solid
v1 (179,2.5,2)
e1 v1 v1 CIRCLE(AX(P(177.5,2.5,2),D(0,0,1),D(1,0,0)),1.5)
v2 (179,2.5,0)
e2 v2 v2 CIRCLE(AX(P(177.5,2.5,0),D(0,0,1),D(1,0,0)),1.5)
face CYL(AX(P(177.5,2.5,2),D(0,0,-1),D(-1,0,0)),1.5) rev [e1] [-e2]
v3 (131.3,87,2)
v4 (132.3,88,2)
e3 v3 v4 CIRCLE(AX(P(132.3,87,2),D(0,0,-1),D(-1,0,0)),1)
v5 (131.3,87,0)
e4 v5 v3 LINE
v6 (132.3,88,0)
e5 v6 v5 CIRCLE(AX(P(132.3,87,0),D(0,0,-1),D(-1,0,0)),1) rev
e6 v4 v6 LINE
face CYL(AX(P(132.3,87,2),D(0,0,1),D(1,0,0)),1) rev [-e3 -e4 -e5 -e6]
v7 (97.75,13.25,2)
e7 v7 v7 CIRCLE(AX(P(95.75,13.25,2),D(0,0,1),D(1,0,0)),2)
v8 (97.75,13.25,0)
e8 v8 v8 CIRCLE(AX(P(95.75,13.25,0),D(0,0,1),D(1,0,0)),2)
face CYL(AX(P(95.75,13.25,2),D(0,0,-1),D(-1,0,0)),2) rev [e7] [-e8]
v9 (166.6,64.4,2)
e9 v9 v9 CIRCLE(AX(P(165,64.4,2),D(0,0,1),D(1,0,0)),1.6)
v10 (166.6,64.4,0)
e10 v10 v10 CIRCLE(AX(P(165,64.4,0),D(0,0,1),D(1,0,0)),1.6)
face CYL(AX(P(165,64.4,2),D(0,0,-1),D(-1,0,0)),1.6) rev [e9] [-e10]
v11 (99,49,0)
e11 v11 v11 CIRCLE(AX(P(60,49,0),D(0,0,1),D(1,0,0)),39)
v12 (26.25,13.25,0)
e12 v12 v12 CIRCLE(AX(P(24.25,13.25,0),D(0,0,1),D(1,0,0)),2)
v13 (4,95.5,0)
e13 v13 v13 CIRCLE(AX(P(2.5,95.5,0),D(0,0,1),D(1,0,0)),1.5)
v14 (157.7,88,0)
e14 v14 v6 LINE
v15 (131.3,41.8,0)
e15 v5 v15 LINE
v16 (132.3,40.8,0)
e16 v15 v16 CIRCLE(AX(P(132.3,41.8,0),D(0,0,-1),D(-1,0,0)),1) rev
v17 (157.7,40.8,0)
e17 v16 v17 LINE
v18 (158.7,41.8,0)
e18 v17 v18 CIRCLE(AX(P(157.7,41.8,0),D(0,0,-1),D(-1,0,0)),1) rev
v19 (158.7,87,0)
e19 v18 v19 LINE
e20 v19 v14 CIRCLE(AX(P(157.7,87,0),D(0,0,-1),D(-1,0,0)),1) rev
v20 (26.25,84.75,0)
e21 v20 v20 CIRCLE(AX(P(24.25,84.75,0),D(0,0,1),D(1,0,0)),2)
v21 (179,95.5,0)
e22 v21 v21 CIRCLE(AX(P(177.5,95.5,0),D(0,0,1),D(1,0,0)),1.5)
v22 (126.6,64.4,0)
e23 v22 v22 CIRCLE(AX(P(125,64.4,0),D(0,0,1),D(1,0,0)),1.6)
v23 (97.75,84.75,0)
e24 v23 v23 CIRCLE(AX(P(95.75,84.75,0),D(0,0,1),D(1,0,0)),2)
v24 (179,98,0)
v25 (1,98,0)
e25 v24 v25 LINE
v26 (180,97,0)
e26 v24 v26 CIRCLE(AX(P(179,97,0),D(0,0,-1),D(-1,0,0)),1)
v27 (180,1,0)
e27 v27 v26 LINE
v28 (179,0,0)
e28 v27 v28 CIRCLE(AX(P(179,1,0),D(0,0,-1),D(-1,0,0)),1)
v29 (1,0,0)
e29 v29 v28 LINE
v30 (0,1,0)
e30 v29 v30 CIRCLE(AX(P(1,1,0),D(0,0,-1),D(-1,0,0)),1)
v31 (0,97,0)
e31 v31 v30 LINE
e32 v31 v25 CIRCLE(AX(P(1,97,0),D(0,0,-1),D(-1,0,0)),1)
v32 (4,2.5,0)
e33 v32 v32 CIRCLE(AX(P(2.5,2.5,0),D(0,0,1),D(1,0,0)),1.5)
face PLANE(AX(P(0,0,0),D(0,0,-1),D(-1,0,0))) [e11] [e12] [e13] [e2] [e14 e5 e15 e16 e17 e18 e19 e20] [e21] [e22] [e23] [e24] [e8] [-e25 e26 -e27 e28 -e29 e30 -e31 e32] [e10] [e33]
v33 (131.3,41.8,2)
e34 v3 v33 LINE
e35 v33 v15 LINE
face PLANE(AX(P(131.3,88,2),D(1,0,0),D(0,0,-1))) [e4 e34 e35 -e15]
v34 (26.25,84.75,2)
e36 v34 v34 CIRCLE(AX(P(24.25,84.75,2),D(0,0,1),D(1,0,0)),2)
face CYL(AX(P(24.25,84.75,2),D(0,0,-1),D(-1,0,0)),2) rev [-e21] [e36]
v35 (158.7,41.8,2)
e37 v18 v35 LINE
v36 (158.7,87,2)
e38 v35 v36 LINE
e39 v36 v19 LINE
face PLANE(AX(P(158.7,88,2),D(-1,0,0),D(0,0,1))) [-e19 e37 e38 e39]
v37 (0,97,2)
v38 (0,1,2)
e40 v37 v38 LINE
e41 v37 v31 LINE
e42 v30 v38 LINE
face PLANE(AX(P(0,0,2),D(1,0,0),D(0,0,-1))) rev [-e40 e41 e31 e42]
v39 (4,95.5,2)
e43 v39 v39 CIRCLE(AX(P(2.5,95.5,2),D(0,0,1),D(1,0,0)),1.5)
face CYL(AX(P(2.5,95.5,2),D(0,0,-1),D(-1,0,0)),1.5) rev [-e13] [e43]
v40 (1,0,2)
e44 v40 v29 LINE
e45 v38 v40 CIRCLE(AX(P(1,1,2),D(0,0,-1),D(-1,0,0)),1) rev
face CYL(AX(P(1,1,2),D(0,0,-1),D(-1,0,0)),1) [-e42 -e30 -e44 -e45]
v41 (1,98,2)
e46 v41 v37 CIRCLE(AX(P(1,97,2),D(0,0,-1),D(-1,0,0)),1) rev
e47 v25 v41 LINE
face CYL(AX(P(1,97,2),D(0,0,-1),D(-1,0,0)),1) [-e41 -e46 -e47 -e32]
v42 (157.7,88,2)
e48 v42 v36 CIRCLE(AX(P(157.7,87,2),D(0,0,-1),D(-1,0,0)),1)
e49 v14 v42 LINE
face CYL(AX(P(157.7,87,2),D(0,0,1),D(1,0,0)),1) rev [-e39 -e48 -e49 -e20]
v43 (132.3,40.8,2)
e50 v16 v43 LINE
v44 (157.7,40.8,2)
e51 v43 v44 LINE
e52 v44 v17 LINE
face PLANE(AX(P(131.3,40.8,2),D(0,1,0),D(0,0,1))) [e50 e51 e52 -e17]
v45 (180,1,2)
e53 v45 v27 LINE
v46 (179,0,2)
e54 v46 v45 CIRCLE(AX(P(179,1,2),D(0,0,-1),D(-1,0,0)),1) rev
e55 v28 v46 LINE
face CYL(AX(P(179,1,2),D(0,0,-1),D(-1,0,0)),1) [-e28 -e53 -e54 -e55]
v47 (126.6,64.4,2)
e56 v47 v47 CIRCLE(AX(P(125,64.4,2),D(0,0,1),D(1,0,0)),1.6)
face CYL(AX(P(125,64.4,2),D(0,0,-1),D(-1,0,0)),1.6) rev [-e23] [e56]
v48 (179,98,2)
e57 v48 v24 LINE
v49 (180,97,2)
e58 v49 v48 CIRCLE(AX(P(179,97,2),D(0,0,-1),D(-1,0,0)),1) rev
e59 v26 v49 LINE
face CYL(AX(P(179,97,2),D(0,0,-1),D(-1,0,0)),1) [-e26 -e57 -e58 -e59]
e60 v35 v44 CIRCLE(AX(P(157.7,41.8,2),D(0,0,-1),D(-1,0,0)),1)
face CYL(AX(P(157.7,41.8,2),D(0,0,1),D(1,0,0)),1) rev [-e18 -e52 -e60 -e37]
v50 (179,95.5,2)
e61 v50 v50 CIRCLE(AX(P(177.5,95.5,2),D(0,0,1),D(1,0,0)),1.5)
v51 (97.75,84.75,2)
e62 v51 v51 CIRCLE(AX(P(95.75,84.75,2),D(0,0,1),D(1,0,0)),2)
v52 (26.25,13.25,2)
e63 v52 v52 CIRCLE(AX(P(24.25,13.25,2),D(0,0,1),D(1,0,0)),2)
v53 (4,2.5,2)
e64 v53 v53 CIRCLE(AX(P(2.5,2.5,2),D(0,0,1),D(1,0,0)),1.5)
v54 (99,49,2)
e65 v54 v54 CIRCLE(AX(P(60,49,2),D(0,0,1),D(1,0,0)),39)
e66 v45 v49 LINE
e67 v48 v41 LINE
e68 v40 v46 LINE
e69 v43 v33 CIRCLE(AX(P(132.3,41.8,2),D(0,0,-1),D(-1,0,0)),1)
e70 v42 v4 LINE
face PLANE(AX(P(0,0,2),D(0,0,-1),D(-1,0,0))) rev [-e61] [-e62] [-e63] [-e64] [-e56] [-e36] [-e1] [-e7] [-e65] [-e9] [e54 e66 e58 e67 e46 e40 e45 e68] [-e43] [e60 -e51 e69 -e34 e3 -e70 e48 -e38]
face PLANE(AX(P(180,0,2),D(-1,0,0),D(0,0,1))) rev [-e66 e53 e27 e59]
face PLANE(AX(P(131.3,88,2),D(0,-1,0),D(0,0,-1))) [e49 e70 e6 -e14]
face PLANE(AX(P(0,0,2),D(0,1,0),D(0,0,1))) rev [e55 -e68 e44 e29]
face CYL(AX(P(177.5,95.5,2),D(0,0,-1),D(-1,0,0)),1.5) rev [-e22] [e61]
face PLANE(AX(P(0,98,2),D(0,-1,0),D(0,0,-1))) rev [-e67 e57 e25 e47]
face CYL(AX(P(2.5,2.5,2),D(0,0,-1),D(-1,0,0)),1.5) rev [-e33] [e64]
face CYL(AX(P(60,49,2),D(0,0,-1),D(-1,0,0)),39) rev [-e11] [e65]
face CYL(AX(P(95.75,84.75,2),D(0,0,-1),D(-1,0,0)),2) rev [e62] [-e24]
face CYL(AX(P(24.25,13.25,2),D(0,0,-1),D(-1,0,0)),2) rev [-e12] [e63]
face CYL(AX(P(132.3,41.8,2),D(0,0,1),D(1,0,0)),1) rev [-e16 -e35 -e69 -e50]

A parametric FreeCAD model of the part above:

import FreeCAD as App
import Part
import Sketcher
Q = App.Units.Quantity


def edges_at(feature, points):
    """Names of the edges that pass closest to the given points."""
    edges = feature.Shape.Edges
    near = lambda p: min(range(len(edges)), key=lambda i: edges[i].distToShape(Part.Vertex(*p))[0])
    return sorted({f"Edge{near(p) + 1}" for p in points})

doc = App.newDocument("Part")
params = doc.addObject("Spreadsheet::Sheet", "Params")
for row, (alias, value) in enumerate([
    ("sketch1_diameter", "3 mm"),
    ("sketch1_diameter2", "4 mm"),
    ("sketch1_diameter3", "78 mm"),
    ("sketch1_diameter4", "3.2 mm"),
    ("sketch1_width", "180 mm"),
    ("pad1_length", "2 mm"),
    ("fillet_radius", "1 mm"),
    ("fillet2_radius", "1 mm"),
], start=1):
    params.set(f"A{row}", alias)
    params.set(f"B{row}", "=" + value)
    params.setAlias(f"B{row}", alias)

body = doc.addObject("PartDesign::Body", "Body")

# Sketch on XY plane
sketch1 = body.newObject("Sketcher::SketchObject", "Sketch")
sketch1.AttachmentSupport = (doc.getObject("XY_Plane"), [""])
sketch1.MapMode = "FlatFace"
sketch1.addGeometry(Part.LineSegment(App.Vector(0, 98, 0), App.Vector(0, 0, 0)), False)
sketch1.addGeometry(Part.LineSegment(App.Vector(0, 0, 0), App.Vector(180, 0, 0)), False)
sketch1.addGeometry(Part.LineSegment(App.Vector(180, 0, 0), App.Vector(180, 98, 0)), False)
sketch1.addGeometry(Part.LineSegment(App.Vector(180, 98, 0), App.Vector(0, 98, 0)), False)
sketch1.addGeometry(Part.Circle(App.Vector(2.5, 2.5, 0), App.Vector(0, 0, 1), 1.5), False)
sketch1.addGeometry(Part.Circle(App.Vector(24.2, 13.2, 0), App.Vector(0, 0, 1), 2), False)
sketch1.addGeometry(Part.Circle(App.Vector(95.8, 13.2, 0), App.Vector(0, 0, 1), 2), False)
sketch1.addGeometry(Part.Circle(App.Vector(177.5, 2.5, 0), App.Vector(0, 0, 1), 1.5), False)
sketch1.addGeometry(Part.Circle(App.Vector(60, 49, 0), App.Vector(0, 0, 1), 39), False)
sketch1.addGeometry(Part.Circle(App.Vector(24.2, 84.8, 0), App.Vector(0, 0, 1), 2), False)
sketch1.addGeometry(Part.Circle(App.Vector(2.5, 95.5, 0), App.Vector(0, 0, 1), 1.5), False)
sketch1.addGeometry(Part.Circle(App.Vector(125, 64.4, 0), App.Vector(0, 0, 1), 1.6), False)
sketch1.addGeometry(Part.LineSegment(App.Vector(158.7, 40.8, 0), App.Vector(131.3, 40.8, 0)), False)
sketch1.addGeometry(Part.LineSegment(App.Vector(131.3, 40.8, 0), App.Vector(131.3, 88, 0)), False)
sketch1.addGeometry(Part.LineSegment(App.Vector(131.3, 88, 0), App.Vector(158.7, 88, 0)), False)
sketch1.addGeometry(Part.LineSegment(App.Vector(158.7, 88, 0), App.Vector(158.7, 40.8, 0)), False)
sketch1.addGeometry(Part.Circle(App.Vector(165, 64.4, 0), App.Vector(0, 0, 1), 1.6), False)
sketch1.addGeometry(Part.Circle(App.Vector(95.8, 84.8, 0), App.Vector(0, 0, 1), 2), False)
sketch1.addGeometry(Part.Circle(App.Vector(177.5, 95.5, 0), App.Vector(0, 0, 1), 1.5), False)
sketch1.addConstraint(Sketcher.Constraint("Coincident", 0, 2, 1, 1))
sketch1.addConstraint(Sketcher.Constraint("Coincident", 1, 2, 2, 1))
sketch1.addConstraint(Sketcher.Constraint("Coincident", 2, 2, 3, 1))
sketch1.addConstraint(Sketcher.Constraint("Coincident", 3, 2, 0, 1))
sketch1.addConstraint(Sketcher.Constraint("Coincident", 12, 2, 13, 1))
sketch1.addConstraint(Sketcher.Constraint("Coincident", 13, 2, 14, 1))
sketch1.addConstraint(Sketcher.Constraint("Coincident", 14, 2, 15, 1))
sketch1.addConstraint(Sketcher.Constraint("Coincident", 15, 2, 12, 1))
sketch1.addConstraint(Sketcher.Constraint("Vertical", 0))
sketch1.addConstraint(Sketcher.Constraint("Horizontal", 1))
sketch1.addConstraint(Sketcher.Constraint("Vertical", 2))
sketch1.addConstraint(Sketcher.Constraint("Horizontal", 3))
sketch1.addConstraint(Sketcher.Constraint("Horizontal", 12))
sketch1.addConstraint(Sketcher.Constraint("Vertical", 13))
sketch1.addConstraint(Sketcher.Constraint("Horizontal", 14))
sketch1.addConstraint(Sketcher.Constraint("Vertical", 15))
sketch1.addConstraint(Sketcher.Constraint("Coincident", 0, 2, -1, 1))
sketch1.addConstraint(Sketcher.Constraint("Equal", 5, 6))
sketch1.addConstraint(Sketcher.Constraint("Equal", 4, 7))
sketch1.addConstraint(Sketcher.Constraint("Equal", 6, 9))
sketch1.addConstraint(Sketcher.Constraint("Equal", 7, 10))
sketch1.addConstraint(Sketcher.Constraint("Equal", 11, 16))
sketch1.addConstraint(Sketcher.Constraint("Equal", 9, 17))
sketch1.addConstraint(Sketcher.Constraint("Equal", 10, 18))
sketch1.addConstraint(Sketcher.Constraint("Horizontal", 5, 3, 6, 3))
sketch1.addConstraint(Sketcher.Constraint("Horizontal", 4, 3, 7, 3))
sketch1.addConstraint(Sketcher.Constraint("Horizontal", 11, 3, 16, 3))
sketch1.addConstraint(Sketcher.Constraint("Horizontal", 9, 3, 17, 3))
sketch1.addConstraint(Sketcher.Constraint("Horizontal", 10, 3, 18, 3))
sketch1.addConstraint(Sketcher.Constraint("Vertical", 5, 3, 9, 3))
sketch1.addConstraint(Sketcher.Constraint("Vertical", 4, 3, 10, 3))
sketch1.addConstraint(Sketcher.Constraint("Vertical", 6, 3, 17, 3))
sketch1.addConstraint(Sketcher.Constraint("Vertical", 7, 3, 18, 3))
sketch1.addConstraint(Sketcher.Constraint("Diameter", 4, Q("3 mm")))
sketch1.addConstraint(Sketcher.Constraint("Diameter", 5, Q("4 mm")))
sketch1.addConstraint(Sketcher.Constraint("Diameter", 8, Q("78 mm")))
sketch1.addConstraint(Sketcher.Constraint("Diameter", 11, Q("3.2 mm")))
sketch1.addConstraint(Sketcher.Constraint("DistanceX", 1, 1, 1, 2, Q("180 mm")))
sketch1.addConstraint(Sketcher.Constraint("DistanceY", 0, 2, 0, 1, Q("98 mm")))
sketch1.addConstraint(Sketcher.Constraint("DistanceX", 12, 2, 12, 1, Q("27.4 mm")))
sketch1.addConstraint(Sketcher.Constraint("DistanceY", 13, 1, 13, 2, Q("47.2 mm")))
sketch1.addConstraint(Sketcher.Constraint("DistanceX", -1, 1, 8, 3, Q("60 mm")))
sketch1.addConstraint(Sketcher.Constraint("DistanceY", -1, 1, 8, 3, Q("49 mm")))
sketch1.addConstraint(Sketcher.Constraint("DistanceX", -1, 1, 11, 3, Q("125 mm")))
sketch1.addConstraint(Sketcher.Constraint("DistanceX", -1, 1, 16, 3, Q("165 mm")))
sketch1.addConstraint(Sketcher.Constraint("DistanceY", -1, 1, 13, 2, Q("88 mm")))
sketch1.addConstraint(Sketcher.Constraint("DistanceX", 4, 3, 7, 3, Q("175 mm")))
sketch1.addConstraint(Sketcher.Constraint("DistanceY", 4, 3, 10, 3, Q("93 mm")))
sketch1.addConstraint(Sketcher.Constraint("DistanceX", -1, 1, 4, 3, Q("2.5 mm")))
sketch1.addConstraint(Sketcher.Constraint("DistanceY", -1, 1, 4, 3, Q("2.5 mm")))
sketch1.addConstraint(Sketcher.Constraint("DistanceY", -1, 1, 11, 3, Q("64.4 mm")))
sketch1.addConstraint(Sketcher.Constraint("DistanceX", -1, 1, 12, 2, Q("131.3 mm")))
sketch1.addConstraint(Sketcher.Constraint("DistanceX", 5, 3, 6, 3, Q("71.5 mm")))
sketch1.addConstraint(Sketcher.Constraint("DistanceY", 5, 3, 9, 3, Q("71.5 mm")))
sketch1.addConstraint(Sketcher.Constraint("DistanceX", -1, 1, 5, 3, Q("24.25 mm")))
sketch1.addConstraint(Sketcher.Constraint("DistanceY", -1, 1, 5, 3, Q("13.25 mm")))
sketch1.setExpression("Constraints[33]", "Params.sketch1_diameter")
sketch1.setExpression("Constraints[34]", "Params.sketch1_diameter2")
sketch1.setExpression("Constraints[35]", "Params.sketch1_diameter3")
sketch1.setExpression("Constraints[36]", "Params.sketch1_diameter4")
sketch1.setExpression("Constraints[37]", "Params.sketch1_width")
pad1 = body.newObject("PartDesign::Pad", "Pad")
pad1.Profile = sketch1
pad1.setExpression("Length", "Params.pad1_length")
doc.recompute()

fillet = body.newObject("PartDesign::Fillet", "Fillet")
fillet.Base = (pad1, edges_at(pad1, [
    (0, 98, 1),
    (180, 98, 1),
    (180, 0, 1),
    (0, 0, 1),
]))
fillet.setExpression("Radius", "Params.fillet_radius")
doc.recompute()

fillet2 = body.newObject("PartDesign::Fillet", "Fillet001")
fillet2.Base = (fillet, edges_at(fillet, [
    (158.7, 40.8, 1),
    (158.7, 88, 1),
    (131.3, 88, 1),
    (131.3, 40.8, 1),
]))
fillet2.setExpression("Radius", "Params.fillet2_radius")

doc.recompute()
